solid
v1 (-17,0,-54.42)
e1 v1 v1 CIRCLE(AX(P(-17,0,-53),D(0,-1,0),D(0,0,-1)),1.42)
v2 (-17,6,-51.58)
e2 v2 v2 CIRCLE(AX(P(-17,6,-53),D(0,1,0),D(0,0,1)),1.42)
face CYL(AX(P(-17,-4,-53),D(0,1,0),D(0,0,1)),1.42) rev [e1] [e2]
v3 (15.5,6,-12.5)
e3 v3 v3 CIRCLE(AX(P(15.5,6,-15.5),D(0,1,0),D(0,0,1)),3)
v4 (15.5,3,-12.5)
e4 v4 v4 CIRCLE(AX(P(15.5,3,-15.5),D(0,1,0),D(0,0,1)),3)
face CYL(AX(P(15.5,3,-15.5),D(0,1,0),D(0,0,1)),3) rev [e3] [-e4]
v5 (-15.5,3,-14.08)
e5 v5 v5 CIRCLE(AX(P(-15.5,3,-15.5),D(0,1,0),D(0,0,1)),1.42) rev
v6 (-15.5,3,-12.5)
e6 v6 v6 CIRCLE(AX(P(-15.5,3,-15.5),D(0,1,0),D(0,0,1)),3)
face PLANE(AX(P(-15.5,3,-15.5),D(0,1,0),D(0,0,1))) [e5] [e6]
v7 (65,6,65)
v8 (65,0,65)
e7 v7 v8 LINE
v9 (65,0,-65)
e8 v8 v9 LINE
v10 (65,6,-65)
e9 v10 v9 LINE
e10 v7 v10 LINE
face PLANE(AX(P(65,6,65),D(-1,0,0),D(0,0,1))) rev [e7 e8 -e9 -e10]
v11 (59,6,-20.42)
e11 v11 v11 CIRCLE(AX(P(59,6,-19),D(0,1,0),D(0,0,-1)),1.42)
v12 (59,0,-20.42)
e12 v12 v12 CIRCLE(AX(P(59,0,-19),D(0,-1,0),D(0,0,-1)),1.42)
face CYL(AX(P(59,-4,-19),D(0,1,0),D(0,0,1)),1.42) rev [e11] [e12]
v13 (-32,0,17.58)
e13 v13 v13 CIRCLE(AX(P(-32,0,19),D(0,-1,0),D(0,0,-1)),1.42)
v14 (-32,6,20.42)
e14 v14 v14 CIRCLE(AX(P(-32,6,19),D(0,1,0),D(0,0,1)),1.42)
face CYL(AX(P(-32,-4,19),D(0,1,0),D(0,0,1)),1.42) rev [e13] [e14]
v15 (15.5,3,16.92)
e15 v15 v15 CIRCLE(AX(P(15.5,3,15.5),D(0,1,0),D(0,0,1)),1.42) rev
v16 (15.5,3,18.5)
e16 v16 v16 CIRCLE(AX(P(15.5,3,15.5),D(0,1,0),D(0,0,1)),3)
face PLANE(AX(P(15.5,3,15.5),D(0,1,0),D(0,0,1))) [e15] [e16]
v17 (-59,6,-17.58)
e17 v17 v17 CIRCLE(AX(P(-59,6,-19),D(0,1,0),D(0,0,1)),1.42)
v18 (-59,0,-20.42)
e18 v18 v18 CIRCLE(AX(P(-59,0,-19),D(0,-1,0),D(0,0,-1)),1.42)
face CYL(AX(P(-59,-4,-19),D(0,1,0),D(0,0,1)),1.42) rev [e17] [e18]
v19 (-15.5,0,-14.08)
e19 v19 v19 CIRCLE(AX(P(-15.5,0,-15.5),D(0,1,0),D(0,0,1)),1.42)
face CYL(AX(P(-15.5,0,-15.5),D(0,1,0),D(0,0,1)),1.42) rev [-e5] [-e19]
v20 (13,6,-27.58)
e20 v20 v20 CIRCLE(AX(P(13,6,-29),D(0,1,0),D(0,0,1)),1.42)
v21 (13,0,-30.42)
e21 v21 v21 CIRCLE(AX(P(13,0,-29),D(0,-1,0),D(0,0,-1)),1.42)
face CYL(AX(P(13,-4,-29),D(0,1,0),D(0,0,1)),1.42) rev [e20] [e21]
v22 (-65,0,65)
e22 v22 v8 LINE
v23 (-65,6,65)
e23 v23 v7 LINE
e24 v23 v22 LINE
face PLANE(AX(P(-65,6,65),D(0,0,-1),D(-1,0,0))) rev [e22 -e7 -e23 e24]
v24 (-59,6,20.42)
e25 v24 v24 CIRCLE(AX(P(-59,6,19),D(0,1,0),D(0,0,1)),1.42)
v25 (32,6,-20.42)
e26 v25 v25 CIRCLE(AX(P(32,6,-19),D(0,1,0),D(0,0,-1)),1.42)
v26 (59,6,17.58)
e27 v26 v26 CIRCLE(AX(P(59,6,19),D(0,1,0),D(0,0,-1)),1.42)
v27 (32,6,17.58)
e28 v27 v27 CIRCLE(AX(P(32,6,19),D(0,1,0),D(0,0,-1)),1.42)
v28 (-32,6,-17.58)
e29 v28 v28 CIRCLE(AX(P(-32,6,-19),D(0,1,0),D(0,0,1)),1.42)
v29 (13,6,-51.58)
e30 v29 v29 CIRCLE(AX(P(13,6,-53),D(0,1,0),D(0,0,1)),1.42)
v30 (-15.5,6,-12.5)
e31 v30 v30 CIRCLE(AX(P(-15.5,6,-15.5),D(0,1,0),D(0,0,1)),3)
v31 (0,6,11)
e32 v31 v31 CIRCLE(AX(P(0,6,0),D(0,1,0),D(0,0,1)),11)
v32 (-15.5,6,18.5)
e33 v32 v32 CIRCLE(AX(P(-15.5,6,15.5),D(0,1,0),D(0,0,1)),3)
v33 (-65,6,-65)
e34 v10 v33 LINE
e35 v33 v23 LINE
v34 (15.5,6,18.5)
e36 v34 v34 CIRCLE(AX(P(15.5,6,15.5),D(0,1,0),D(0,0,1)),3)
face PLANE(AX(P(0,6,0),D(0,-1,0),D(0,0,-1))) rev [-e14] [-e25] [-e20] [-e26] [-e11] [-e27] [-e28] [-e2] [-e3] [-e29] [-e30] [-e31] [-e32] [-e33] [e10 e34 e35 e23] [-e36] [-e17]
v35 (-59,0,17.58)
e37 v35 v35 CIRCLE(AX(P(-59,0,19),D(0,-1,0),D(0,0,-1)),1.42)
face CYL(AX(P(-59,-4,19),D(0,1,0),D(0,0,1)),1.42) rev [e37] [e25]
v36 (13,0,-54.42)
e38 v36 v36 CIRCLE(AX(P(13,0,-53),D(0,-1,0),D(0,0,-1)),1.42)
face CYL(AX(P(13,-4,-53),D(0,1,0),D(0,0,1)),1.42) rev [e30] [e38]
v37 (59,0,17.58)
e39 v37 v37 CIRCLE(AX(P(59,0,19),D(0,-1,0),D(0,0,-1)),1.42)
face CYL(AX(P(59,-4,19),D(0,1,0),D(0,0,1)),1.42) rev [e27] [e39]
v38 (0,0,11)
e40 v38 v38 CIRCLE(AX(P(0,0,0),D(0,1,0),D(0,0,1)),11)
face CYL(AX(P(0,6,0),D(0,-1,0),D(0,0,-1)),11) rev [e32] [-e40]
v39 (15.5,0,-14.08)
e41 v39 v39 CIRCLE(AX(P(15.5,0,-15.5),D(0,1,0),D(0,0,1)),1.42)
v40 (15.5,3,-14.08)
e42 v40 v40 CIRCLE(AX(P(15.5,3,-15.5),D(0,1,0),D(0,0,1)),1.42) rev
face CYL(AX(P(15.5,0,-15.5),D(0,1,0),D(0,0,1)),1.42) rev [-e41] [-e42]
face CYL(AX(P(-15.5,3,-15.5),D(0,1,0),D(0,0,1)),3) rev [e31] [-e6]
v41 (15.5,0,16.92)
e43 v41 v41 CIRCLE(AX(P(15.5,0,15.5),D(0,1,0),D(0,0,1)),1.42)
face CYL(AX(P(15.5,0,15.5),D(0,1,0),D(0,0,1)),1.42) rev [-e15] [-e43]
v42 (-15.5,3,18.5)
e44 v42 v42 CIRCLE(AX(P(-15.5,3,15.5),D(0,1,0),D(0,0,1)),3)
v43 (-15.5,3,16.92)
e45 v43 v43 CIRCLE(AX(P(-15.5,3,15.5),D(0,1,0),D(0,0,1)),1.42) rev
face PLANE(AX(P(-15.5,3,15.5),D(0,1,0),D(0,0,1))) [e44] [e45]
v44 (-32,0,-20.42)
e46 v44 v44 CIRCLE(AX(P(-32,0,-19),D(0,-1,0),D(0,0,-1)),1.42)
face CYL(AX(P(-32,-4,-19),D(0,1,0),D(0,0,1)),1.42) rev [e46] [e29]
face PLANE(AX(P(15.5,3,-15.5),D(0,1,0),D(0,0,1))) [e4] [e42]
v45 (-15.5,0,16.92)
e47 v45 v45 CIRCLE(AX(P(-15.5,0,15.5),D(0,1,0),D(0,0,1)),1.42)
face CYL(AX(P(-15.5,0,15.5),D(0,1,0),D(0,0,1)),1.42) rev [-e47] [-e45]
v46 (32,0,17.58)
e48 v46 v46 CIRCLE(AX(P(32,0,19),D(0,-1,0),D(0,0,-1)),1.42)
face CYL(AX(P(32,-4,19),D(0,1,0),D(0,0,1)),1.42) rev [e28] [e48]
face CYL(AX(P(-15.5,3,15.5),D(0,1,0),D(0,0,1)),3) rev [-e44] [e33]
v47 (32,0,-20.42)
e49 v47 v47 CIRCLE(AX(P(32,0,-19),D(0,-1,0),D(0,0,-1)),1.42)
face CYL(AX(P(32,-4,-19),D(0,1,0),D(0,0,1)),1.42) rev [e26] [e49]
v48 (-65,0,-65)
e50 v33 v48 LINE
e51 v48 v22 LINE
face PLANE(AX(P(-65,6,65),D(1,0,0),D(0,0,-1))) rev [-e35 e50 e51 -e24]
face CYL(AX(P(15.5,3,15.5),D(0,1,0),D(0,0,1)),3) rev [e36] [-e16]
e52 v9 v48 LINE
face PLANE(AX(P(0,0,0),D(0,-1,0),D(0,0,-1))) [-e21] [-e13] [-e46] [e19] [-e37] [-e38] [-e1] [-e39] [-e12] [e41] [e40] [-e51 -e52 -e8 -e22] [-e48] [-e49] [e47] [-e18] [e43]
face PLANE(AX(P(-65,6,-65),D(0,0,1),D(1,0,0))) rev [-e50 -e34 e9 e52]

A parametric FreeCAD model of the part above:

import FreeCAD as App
import Part
import Sketcher
from FreeCAD import Vector

doc = App.newDocument("Part")
params = doc.addObject("Spreadsheet::Sheet", "Params")
for row, (alias, value) in enumerate([
    ("sketch1_diameter", "22 mm"),
    ("sketch1_width", "130 mm"),
    ("pad1_length", "6 mm"),
    ("sketch2_diameter", "2.84 mm"),
    ("pocket1_length", "6 mm"),
    ("sketch3_diameter", "6 mm"),
    ("pocket2_length", "3 mm"),
    ("sketch4_diameter", "2.84 mm"),
    ("pocket3_length", "10 mm"),
    ("sketch5_diameter", "2.84 mm"),
    ("pocket4_length", "10 mm"),
], start=1):
    params.set(f"A{row}", alias)
    params.set(f"B{row}", "=" + value)
    params.setAlias(f"B{row}", alias)

body = doc.addObject("PartDesign::Body", "Body")

sketch1 = doc.addObject("Sketcher::SketchObject", "Sketch")
body.addObject(sketch1)
sketch1.AttachmentSupport = (doc.XZ_Plane, [""])
sketch1.MapMode = "FlatFace"
sketch1.addGeometry([
    Part.LineSegment(Vector(-65, -65, 0), Vector(-65, 65, 0)),
    Part.LineSegment(Vector(-65, 65, 0), Vector(65, 65, 0)),
    Part.LineSegment(Vector(65, 65, 0), Vector(65, -65, 0)),
    Part.LineSegment(Vector(65, -65, 0), Vector(-65, -65, 0)),
    Part.Circle(Vector(0, 0, 0), Vector(0, 0, 1), 11),
], False)
sketch1.addConstraint([
    Sketcher.Constraint("Coincident", 0, 2, 1, 1),
    Sketcher.Constraint("Coincident", 1, 2, 2, 1),
    Sketcher.Constraint("Coincident", 2, 2, 3, 1),
    Sketcher.Constraint("Coincident", 3, 2, 0, 1),
    Sketcher.Constraint("Vertical", 0),
    Sketcher.Constraint("Horizontal", 1),
    Sketcher.Constraint("Vertical", 2),
    Sketcher.Constraint("Horizontal", 3),
    Sketcher.Constraint("Coincident", 4, 3, -1, 1),
    Sketcher.Constraint("Symmetric", 0, 2, 2, 2, -1, 1),
    Sketcher.Constraint("Equal", 3, 0),
    Sketcher.Constraint("Diameter", 4, 22.0),
    Sketcher.Constraint("DistanceX", 1, 1, 1, 2, 130.0),
])
sketch1.setExpression("Constraints[11]", "Params.sketch1_diameter")
sketch1.setExpression("Constraints[12]", "Params.sketch1_width")
pad1 = doc.addObject("PartDesign::Pad", "Pad")
body.addObject(pad1)
pad1.Profile = sketch1
pad1.setExpression("Length", "Params.pad1_length")
pad1.Reversed = True

sketch2 = doc.addObject("Sketcher::SketchObject", "Sketch001")
body.addObject(sketch2)
sketch2.AttachmentSupport = (doc.XZ_Plane, [""])
sketch2.MapMode = "FlatFace"
sketch2.AttachmentOffset = App.Placement(Vector(0, 0, -6), App.Rotation())
sketch2.addGeometry([
    Part.Circle(Vector(-15.5, -15.5, 0), Vector(0, 0, 1), 1.4),
    Part.Circle(Vector(15.5, -15.5, 0), Vector(0, 0, 1), 1.4),
    Part.Circle(Vector(15.5, 15.5, 0), Vector(0, 0, 1), 1.4),
    Part.Circle(Vector(-15.5, 15.5, 0), Vector(0, 0, 1), 1.4),
], False)
sketch2.addConstraint([
    Sketcher.Constraint("Equal", 0, 1),
    Sketcher.Constraint("Equal", 1, 2),
    Sketcher.Constraint("Equal", 2, 3),
    Sketcher.Constraint("Symmetric", 0, 3, 2, 3, -1, 1),
    Sketcher.Constraint("Symmetric", 1, 3, 3, 3, -1, 1),
    Sketcher.Constraint("Symmetric", 0, 3, 1, 3, -2),
    Sketcher.Constraint("Diameter", 0, 2.84),
    Sketcher.Constraint("DistanceX", 0, 3, 1, 3, 31.0),
    Sketcher.Constraint("DistanceY", 1, 3, 2, 3, 31.0),
])
sketch2.setExpression("Constraints[6]", "Params.sketch2_diameter")
pocket1 = doc.addObject("PartDesign::Pocket", "Pocket")
body.addObject(pocket1)
pocket1.Profile = sketch2
pocket1.setExpression("Length", "Params.pocket1_length")
pocket1.Reversed = True

sketch3 = doc.addObject("Sketcher::SketchObject", "Sketch002")
body.addObject(sketch3)
sketch3.AttachmentSupport = (doc.XZ_Plane, [""])
sketch3.MapMode = "FlatFace"
sketch3.AttachmentOffset = App.Placement(Vector(0, 0, -6), App.Rotation())
sketch3.addGeometry([
    Part.Circle(Vector(-15.5, -15.5, 0), Vector(0, 0, 1), 3),
    Part.Circle(Vector(15.5, -15.5, 0), Vector(0, 0, 1), 3),
    Part.Circle(Vector(15.5, 15.5, 0), Vector(0, 0, 1), 3),
    Part.Circle(Vector(-15.5, 15.5, 0), Vector(0, 0, 1), 3),
], False)
sketch3.addConstraint([
    Sketcher.Constraint("Equal", 0, 1),
    Sketcher.Constraint("Equal", 1, 2),
    Sketcher.Constraint("Equal", 2, 3),
    Sketcher.Constraint("Symmetric", 0, 3, 2, 3, -1, 1),
    Sketcher.Constraint("Symmetric", 1, 3, 3, 3, -1, 1),
    Sketcher.Constraint("Symmetric", 0, 3, 1, 3, -2),
    Sketcher.Constraint("Diameter", 0, 6.0),
    Sketcher.Constraint("DistanceX", 0, 3, 1, 3, 31.0),
    Sketcher.Constraint("DistanceY", 1, 3, 2, 3, 31.0),
])
sketch3.setExpression("Constraints[6]", "Params.sketch3_diameter")
pocket2 = doc.addObject("PartDesign::Pocket", "Pocket001")
body.addObject(pocket2)
pocket2.Profile = sketch3
pocket2.setExpression("Length", "Params.pocket2_length")
pocket2.Reversed = True

sketch4 = doc.addObject("Sketcher::SketchObject", "Sketch003")
body.addObject(sketch4)
sketch4.AttachmentSupport = (doc.XZ_Plane, [""])
sketch4.MapMode = "FlatFace"
sketch4.AttachmentOffset = App.Placement(Vector(0, 0, -6), App.Rotation())
sketch4.addGeometry([
    Part.Circle(Vector(-59, -19, 0), Vector(0, 0, 1), 1.4),
    Part.Circle(Vector(-32, -19, 0), Vector(0, 0, 1), 1.4),
    Part.Circle(Vector(-32, 19, 0), Vector(0, 0, 1), 1.4),
    Part.Circle(Vector(-59, 19, 0), Vector(0, 0, 1), 1.4),
    Part.Circle(Vector(59, -19, 0), Vector(0, 0, 1), 1.4),
    Part.Circle(Vector(59, 19, 0), Vector(0, 0, 1), 1.4),
    Part.Circle(Vector(32, 19, 0), Vector(0, 0, 1), 1.4),
    Part.Circle(Vector(32, -19, 0), Vector(0, 0, 1), 1.4),
], False)
sketch4.addConstraint([
    Sketcher.Constraint("Equal", 0, 1),
    Sketcher.Constraint("Equal", 1, 2),
    Sketcher.Constraint("Equal", 2, 3),
    Sketcher.Constraint("Equal", 3, 4),
    Sketcher.Constraint("Equal", 4, 5),
    Sketcher.Constraint("Equal", 5, 6),
    Sketcher.Constraint("Equal", 6, 7),
    Sketcher.Constraint("Symmetric", 3, 3, 4, 3, -1, 1),
    Sketcher.Constraint("Symmetric", 0, 3, 5, 3, -1, 1),
    Sketcher.Constraint("Symmetric", 1, 3, 6, 3, -1, 1),
    Sketcher.Constraint("Symmetric", 2, 3, 7, 3, -1, 1),
    Sketcher.Constraint("Symmetric", 0, 3, 4, 3, -2),
    Sketcher.Constraint("Symmetric", 2, 3, 6, 3, -2),
    Sketcher.Constraint("Horizontal", 0, 3, 1, 3),
    Sketcher.Constraint("Diameter", 0, 2.84),
    Sketcher.Constraint("DistanceX", 0, 3, -1, 1, 59.0),
    Sketcher.Constraint("DistanceY", 0, 3, -1, 1, 19.0),
    Sketcher.Constraint("DistanceX", 1, 3, -1, 1, 32.0),
])
sketch4.setExpression("Constraints[14]", "Params.sketch4_diameter")
pocket3 = doc.addObject("PartDesign::Pocket", "Pocket002")
body.addObject(pocket3)
pocket3.Profile = sketch4
pocket3.setExpression("Length", "Params.pocket3_length")
pocket3.Reversed = True

sketch5 = doc.addObject("Sketcher::SketchObject", "Sketch004")
body.addObject(sketch5)
sketch5.AttachmentSupport = (doc.XZ_Plane, [""])
sketch5.MapMode = "FlatFace"
sketch5.AttachmentOffset = App.Placement(Vector(0, 0, -6), App.Rotation())
sketch5.addGeometry([
    Part.Circle(Vector(13, -53, 0), Vector(0, 0, 1), 1.4),
    Part.Circle(Vector(-17, -53, 0), Vector(0, 0, 1), 1.4),
    Part.Circle(Vector(13, -29, 0), Vector(0, 0, 1), 1.4),
], False)
sketch5.addConstraint([
    Sketcher.Constraint("Equal", 0, 1),
    Sketcher.Constraint("Equal", 1, 2),
    Sketcher.Constraint("Horizontal", 0, 3, 1, 3),
    Sketcher.Constraint("Vertical", 0, 3, 2, 3),
    Sketcher.Constraint("Diameter", 0, 2.84),
    Sketcher.Constraint("DistanceX", -1, 1, 0, 3, 13.0),
    Sketcher.Constraint("DistanceY", 0, 3, -1, 1, 53.0),
    Sketcher.Constraint("DistanceX", 1, 3, -1, 1, 17.0),
    Sketcher.Constraint("DistanceY", 2, 3, -1, 1, 29.0),
])
sketch5.setExpression("Constraints[4]", "Params.sketch5_diameter")
pocket4 = doc.addObject("PartDesign::Pocket", "Pocket003")
body.addObject(pocket4)
pocket4.Profile = sketch5
pocket4.setExpression("Length", "Params.pocket4_length")
pocket4.Reversed = True

doc.recompute()
